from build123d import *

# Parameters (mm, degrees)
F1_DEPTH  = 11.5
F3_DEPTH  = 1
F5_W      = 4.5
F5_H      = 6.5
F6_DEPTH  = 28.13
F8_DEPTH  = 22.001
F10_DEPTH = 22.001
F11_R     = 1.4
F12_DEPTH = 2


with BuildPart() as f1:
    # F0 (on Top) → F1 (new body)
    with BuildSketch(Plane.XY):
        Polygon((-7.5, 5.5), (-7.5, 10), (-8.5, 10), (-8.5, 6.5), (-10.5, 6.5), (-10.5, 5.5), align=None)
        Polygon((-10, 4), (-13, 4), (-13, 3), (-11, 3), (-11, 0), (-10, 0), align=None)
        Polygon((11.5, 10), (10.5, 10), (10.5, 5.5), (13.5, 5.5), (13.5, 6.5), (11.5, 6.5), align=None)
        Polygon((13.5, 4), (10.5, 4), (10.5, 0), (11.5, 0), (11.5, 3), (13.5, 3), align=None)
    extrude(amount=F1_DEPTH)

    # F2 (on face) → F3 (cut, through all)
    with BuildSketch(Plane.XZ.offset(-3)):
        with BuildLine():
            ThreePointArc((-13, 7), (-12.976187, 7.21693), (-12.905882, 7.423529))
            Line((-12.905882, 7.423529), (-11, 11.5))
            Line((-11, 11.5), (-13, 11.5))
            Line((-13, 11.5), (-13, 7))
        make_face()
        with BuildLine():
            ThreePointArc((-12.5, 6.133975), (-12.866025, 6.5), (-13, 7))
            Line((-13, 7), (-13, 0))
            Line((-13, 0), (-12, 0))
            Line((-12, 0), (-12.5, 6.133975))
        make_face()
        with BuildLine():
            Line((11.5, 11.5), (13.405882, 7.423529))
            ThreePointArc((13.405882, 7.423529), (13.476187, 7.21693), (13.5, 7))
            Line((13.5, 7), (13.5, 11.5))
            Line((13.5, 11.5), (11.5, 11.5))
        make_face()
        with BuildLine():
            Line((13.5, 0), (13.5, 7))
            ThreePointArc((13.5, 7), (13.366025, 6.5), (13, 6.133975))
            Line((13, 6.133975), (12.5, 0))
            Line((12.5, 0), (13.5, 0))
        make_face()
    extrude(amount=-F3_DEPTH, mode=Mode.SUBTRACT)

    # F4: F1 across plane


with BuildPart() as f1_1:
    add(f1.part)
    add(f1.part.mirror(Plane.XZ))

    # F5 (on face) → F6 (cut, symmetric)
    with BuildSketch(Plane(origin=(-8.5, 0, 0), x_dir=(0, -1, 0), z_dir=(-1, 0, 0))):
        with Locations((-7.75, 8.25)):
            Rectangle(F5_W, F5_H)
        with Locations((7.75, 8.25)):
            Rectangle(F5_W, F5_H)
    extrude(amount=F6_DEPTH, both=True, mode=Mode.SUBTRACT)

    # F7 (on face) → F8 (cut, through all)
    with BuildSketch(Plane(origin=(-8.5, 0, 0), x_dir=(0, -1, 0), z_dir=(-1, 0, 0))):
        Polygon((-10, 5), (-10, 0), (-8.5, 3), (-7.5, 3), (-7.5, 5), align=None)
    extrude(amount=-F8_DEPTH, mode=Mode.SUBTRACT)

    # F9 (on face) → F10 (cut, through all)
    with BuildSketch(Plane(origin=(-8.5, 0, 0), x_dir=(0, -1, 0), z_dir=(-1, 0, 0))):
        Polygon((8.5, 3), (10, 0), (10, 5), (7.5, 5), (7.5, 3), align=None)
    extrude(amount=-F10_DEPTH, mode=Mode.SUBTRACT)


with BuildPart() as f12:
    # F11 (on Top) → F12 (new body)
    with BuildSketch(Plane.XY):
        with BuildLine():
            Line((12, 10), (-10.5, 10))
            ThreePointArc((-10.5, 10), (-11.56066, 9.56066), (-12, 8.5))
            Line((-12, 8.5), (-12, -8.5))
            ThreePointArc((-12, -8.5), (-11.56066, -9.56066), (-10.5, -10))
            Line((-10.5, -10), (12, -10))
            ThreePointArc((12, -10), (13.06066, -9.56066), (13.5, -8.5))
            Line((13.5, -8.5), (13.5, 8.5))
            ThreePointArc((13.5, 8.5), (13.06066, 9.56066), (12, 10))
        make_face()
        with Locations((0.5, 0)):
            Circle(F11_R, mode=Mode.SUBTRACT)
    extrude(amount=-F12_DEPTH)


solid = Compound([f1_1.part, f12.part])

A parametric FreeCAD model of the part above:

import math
import FreeCAD as App
import Part
import Sketcher
from FreeCAD import Vector
Q = App.Units.Quantity

doc = App.newDocument("Part")
body = doc.addObject("PartDesign::Body", "Body")
body.AllowCompound = True

# Sketch on XY plane
sketch1 = doc.addObject("Sketcher::SketchObject", "Sketch")
body.addObject(sketch1)
sketch1.AttachmentSupport = (doc.XY_Plane, [""])
sketch1.MapMode = "FlatFace"
sketch1.addGeometry(Part.LineSegment(Vector(-7.5, 5.5, 0), Vector(-7.5, 10, 0)), False)
sketch1.addGeometry(Part.LineSegment(Vector(-7.5, 10, 0), Vector(-8.5, 10, 0)), False)
sketch1.addGeometry(Part.LineSegment(Vector(-8.5, 10, 0), Vector(-8.5, 6.5, 0)), False)
sketch1.addGeometry(Part.LineSegment(Vector(-8.5, 6.5, 0), Vector(-10.5, 6.5, 0)), False)
sketch1.addGeometry(Part.LineSegment(Vector(-10.5, 6.5, 0), Vector(-10.5, 5.5, 0)), False)
sketch1.addGeometry(Part.LineSegment(Vector(-10.5, 5.5, 0), Vector(-7.5, 5.5, 0)), False)
sketch1.addGeometry(Part.LineSegment(Vector(-10, 4, 0), Vector(-13, 4, 0)), False)
sketch1.addGeometry(Part.LineSegment(Vector(-13, 4, 0), Vector(-13, 3, 0)), False)
sketch1.addGeometry(Part.LineSegment(Vector(-13, 3, 0), Vector(-11, 3, 0)), False)
sketch1.addGeometry(Part.LineSegment(Vector(-11, 3, 0), Vector(-11, 0, 0)), False)
sketch1.addGeometry(Part.LineSegment(Vector(-11, 0, 0), Vector(-10, 0, 0)), False)
sketch1.addGeometry(Part.LineSegment(Vector(-10, 0, 0), Vector(-10, 4, 0)), False)
sketch1.addGeometry(Part.LineSegment(Vector(11.5, 10, 0), Vector(10.5, 10, 0)), False)
sketch1.addGeometry(Part.LineSegment(Vector(10.5, 10, 0), Vector(10.5, 5.5, 0)), False)
sketch1.addGeometry(Part.LineSegment(Vector(10.5, 5.5, 0), Vector(13.5, 5.5, 0)), False)
sketch1.addGeometry(Part.LineSegment(Vector(13.5, 5.5, 0), Vector(13.5, 6.5, 0)), False)
sketch1.addGeometry(Part.LineSegment(Vector(13.5, 6.5, 0), Vector(11.5, 6.5, 0)), False)
sketch1.addGeometry(Part.LineSegment(Vector(11.5, 6.5, 0), Vector(11.5, 10, 0)), False)
sketch1.addGeometry(Part.LineSegment(Vector(13.5, 4, 0), Vector(10.5, 4, 0)), False)
sketch1.addGeometry(Part.LineSegment(Vector(10.5, 4, 0), Vector(10.5, 0, 0)), False)
sketch1.addGeometry(Part.LineSegment(Vector(10.5, 0, 0), Vector(11.5, 0, 0)), False)
sketch1.addGeometry(Part.LineSegment(Vector(11.5, 0, 0), Vector(11.5, 3, 0)), False)
sketch1.addGeometry(Part.LineSegment(Vector(11.5, 3, 0), Vector(13.5, 3, 0)), False)
sketch1.addGeometry(Part.LineSegment(Vector(13.5, 3, 0), Vector(13.5, 4, 0)), False)
sketch1.addConstraint(Sketcher.Constraint("Coincident", 0, 2, 1, 1))
sketch1.addConstraint(Sketcher.Constraint("Coincident", 1, 2, 2, 1))
sketch1.addConstraint(Sketcher.Constraint("Coincident", 2, 2, 3, 1))
sketch1.addConstraint(Sketcher.Constraint("Coincident", 3, 2, 4, 1))
sketch1.addConstraint(Sketcher.Constraint("Coincident", 4, 2, 5, 1))
sketch1.addConstraint(Sketcher.Constraint("Coincident", 5, 2, 0, 1))
sketch1.addConstraint(Sketcher.Constraint("Coincident", 6, 2, 7, 1))
sketch1.addConstraint(Sketcher.Constraint("Coincident", 7, 2, 8, 1))
sketch1.addConstraint(Sketcher.Constraint("Coincident", 8, 2, 9, 1))
sketch1.addConstraint(Sketcher.Constraint("Coincident", 9, 2, 10, 1))
sketch1.addConstraint(Sketcher.Constraint("Coincident", 10, 2, 11, 1))
sketch1.addConstraint(Sketcher.Constraint("Coincident", 11, 2, 6, 1))
sketch1.addConstraint(Sketcher.Constraint("Coincident", 12, 2, 13, 1))
sketch1.addConstraint(Sketcher.Constraint("Coincident", 13, 2, 14, 1))
sketch1.addConstraint(Sketcher.Constraint("Coincident", 14, 2, 15, 1))
sketch1.addConstraint(Sketcher.Constraint("Coincident", 15, 2, 16, 1))
sketch1.addConstraint(Sketcher.Constraint("Coincident", 16, 2, 17, 1))
sketch1.addConstraint(Sketcher.Constraint("Coincident", 17, 2, 12, 1))
sketch1.addConstraint(Sketcher.Constraint("Coincident", 18, 2, 19, 1))
sketch1.addConstraint(Sketcher.Constraint("Coincident", 19, 2, 20, 1))
sketch1.addConstraint(Sketcher.Constraint("Coincident", 20, 2, 21, 1))
sketch1.addConstraint(Sketcher.Constraint("Coincident", 21, 2, 22, 1))
sketch1.addConstraint(Sketcher.Constraint("Coincident", 22, 2, 23, 1))
sketch1.addConstraint(Sketcher.Constraint("Coincident", 23, 2, 18, 1))
sketch1.addConstraint(Sketcher.Constraint("Vertical", 0))
sketch1.addConstraint(Sketcher.Constraint("Horizontal", 1))
sketch1.addConstraint(Sketcher.Constraint("Vertical", 2))
sketch1.addConstraint(Sketcher.Constraint("Horizontal", 3))
sketch1.addConstraint(Sketcher.Constraint("Vertical", 4))
sketch1.addConstraint(Sketcher.Constraint("Horizontal", 5))
sketch1.addConstraint(Sketcher.Constraint("Horizontal", 6))
sketch1.addConstraint(Sketcher.Constraint("Vertical", 7))
sketch1.addConstraint(Sketcher.Constraint("Horizontal", 8))
sketch1.addConstraint(Sketcher.Constraint("Vertical", 9))
sketch1.addConstraint(Sketcher.Constraint("Horizontal", 10))
sketch1.addConstraint(Sketcher.Constraint("Vertical", 11))
sketch1.addConstraint(Sketcher.Constraint("Horizontal", 12))
sketch1.addConstraint(Sketcher.Constraint("Vertical", 13))
sketch1.addConstraint(Sketcher.Constraint("Horizontal", 14))
sketch1.addConstraint(Sketcher.Constraint("Vertical", 15))
sketch1.addConstraint(Sketcher.Constraint("Horizontal", 16))
sketch1.addConstraint(Sketcher.Constraint("Vertical", 17))
sketch1.addConstraint(Sketcher.Constraint("Horizontal", 18))
sketch1.addConstraint(Sketcher.Constraint("Vertical", 19))
sketch1.addConstraint(Sketcher.Constraint("Horizontal", 20))
sketch1.addConstraint(Sketcher.Constraint("Vertical", 21))
sketch1.addConstraint(Sketcher.Constraint("Horizontal", 22))
sketch1.addConstraint(Sketcher.Constraint("Vertical", 23))
sketch1.addConstraint(Sketcher.Constraint("Symmetric", 4, 2, 13, 2, -2))
sketch1.addConstraint(Sketcher.Constraint("PointOnObject", 9, 2, -1))
sketch1.addConstraint(Sketcher.Constraint("PointOnObject", 19, 2, -1))
sketch1.addConstraint(Sketcher.Constraint("Horizontal", 1, 2, 12, 2))
sketch1.addConstraint(Sketcher.Constraint("Horizontal", 3, 2, 15, 2))
sketch1.addConstraint(Sketcher.Constraint("Horizontal", 11, 2, 18, 2))
sketch1.addConstraint(Sketcher.Constraint("Horizontal", 8, 2, 21, 2))
sketch1.addConstraint(Sketcher.Constraint("Vertical", 13, 2, 18, 2))
sketch1.addConstraint(Sketcher.Constraint("Vertical", 17, 2, 20, 2))
sketch1.addConstraint(Sketcher.Constraint("Vertical", 15, 2, 22, 2))
sketch1.addConstraint(Sketcher.Constraint("Equal", 5, 6))
sketch1.addConstraint(Sketcher.Constraint("Equal", 3, 8))
sketch1.addConstraint(Sketcher.Constraint("Equal", 10, 12))
sketch1.addConstraint(Sketcher.Constraint("Equal", 6, 14))
sketch1.addConstraint(Sketcher.Constraint("Equal", 20, 4))
sketch1.addConstraint(Sketcher.Constraint("Equal", 4, 7))
sketch1.addConstraint(Sketcher.Constraint("Equal", 18, 9))
sketch1.addConstraint(Sketcher.Constraint("DistanceX", 1, 2, 1, 1, Q("1 mm")))
sketch1.addConstraint(Sketcher.Constraint("DistanceX", 3, 2, 3, 1, Q("2 mm")))
sketch1.addConstraint(Sketcher.Constraint("DistanceY", 0, 1, 0, 2, Q("4.5 mm")))
sketch1.addConstraint(Sketcher.Constraint("DistanceY", -1, 1, 0, 2, Q("10 mm")))
sketch1.addConstraint(Sketcher.Constraint("DistanceX", 6, 2, -1, 1, Q("13 mm")))
sketch1.addConstraint(Sketcher.Constraint("DistanceX", 0, 2, 12, 2, Q("18 mm")))
pad1 = doc.addObject("PartDesign::Pad", "Pad")
body.addObject(pad1)
pad1.Profile = sketch1
pad1.Length = 11.5

# Sketch on XZ plane
sketch2 = doc.addObject("Sketcher::SketchObject", "Sketch001")
body.addObject(sketch2)
sketch2.AttachmentSupport = (doc.XZ_Plane, [""])
sketch2.MapMode = "FlatFace"
sketch2.AttachmentOffset = App.Placement(Vector(0, 0, -3), App.Rotation())
sketch2.addGeometry(Part.ArcOfCircle(Part.Circle(Vector(-12, 7, 0), Vector(0, 0, 1), 1), math.radians(155), math.radians(180)), False)
sketch2.addGeometry(Part.LineSegment(Vector(-12.91, 7.42, 0), Vector(-11, 11.5, 0)), False)
sketch2.addGeometry(Part.LineSegment(Vector(-11, 11.5, 0), Vector(-13, 11.5, 0)), False)
sketch2.addGeometry(Part.LineSegment(Vector(-13, 11.5, 0), Vector(-13, 7, 0)), False)
sketch2.addGeometry(Part.ArcOfCircle(Part.Circle(Vector(-12, 7, 0), Vector(0, 0, 1), 1), math.radians(-180), math.radians(-120)), False)
sketch2.addGeometry(Part.LineSegment(Vector(-13, 7, 0), Vector(-13, 0, 0)), False)
sketch2.addGeometry(Part.LineSegment(Vector(-13, 0, 0), Vector(-12, 0, 0)), False)
sketch2.addGeometry(Part.LineSegment(Vector(-12, 0, 0), Vector(-12.5, 6.13, 0)), False)
sketch2.addGeometry(Part.LineSegment(Vector(11.5, 11.5, 0), Vector(13.41, 7.42, 0)), False)
sketch2.addGeometry(Part.ArcOfCircle(Part.Circle(Vector(12.5, 7, 0), Vector(0, 0, 1), 1), math.radians(0), math.radians(25)), False)
sketch2.addGeometry(Part.LineSegment(Vector(13.5, 7, 0), Vector(13.5, 11.5, 0)), False)
sketch2.addGeometry(Part.LineSegment(Vector(13.5, 11.5, 0), Vector(11.5, 11.5, 0)), False)
sketch2.addGeometry(Part.LineSegment(Vector(13.5, 0, 0), Vector(13.5, 7, 0)), False)
sketch2.addGeometry(Part.ArcOfCircle(Part.Circle(Vector(12.5, 7, 0), Vector(0, 0, 1), 1), math.radians(-60), math.radians(0)), False)
sketch2.addGeometry(Part.LineSegment(Vector(13, 6.13, 0), Vector(12.5, 0, 0)), False)
sketch2.addGeometry(Part.LineSegment(Vector(12.5, 0, 0), Vector(13.5, 0, 0)), False)
sketch2.addConstraint(Sketcher.Constraint("Tangent", 0, 1, 1, 1))
sketch2.addConstraint(Sketcher.Constraint("Coincident", 1, 2, 2, 1))
sketch2.addConstraint(Sketcher.Constraint("Coincident", 2, 2, 3, 1))
sketch2.addConstraint(Sketcher.Constraint("Tangent", 3, 2, 0, 2))
sketch2.addConstraint(Sketcher.Constraint("Tangent", 4, 1, 5, 1))
sketch2.addConstraint(Sketcher.Constraint("Coincident", 5, 2, 6, 1))
sketch2.addConstraint(Sketcher.Constraint("Coincident", 6, 2, 7, 1))
sketch2.addConstraint(Sketcher.Constraint("Coincident", 7, 2, 4, 2))
sketch2.addConstraint(Sketcher.Constraint("Tangent", 8, 2, 9, 2))
sketch2.addConstraint(Sketcher.Constraint("Tangent", 9, 1, 10, 1))
sketch2.addConstraint(Sketcher.Constraint("Coincident", 10, 2, 11, 1))
sketch2.addConstraint(Sketcher.Constraint("Coincident", 11, 2, 8, 1))
sketch2.addConstraint(Sketcher.Constraint("Tangent", 12, 2, 13, 2))
sketch2.addConstraint(Sketcher.Constraint("Coincident", 13, 1, 14, 1))
sketch2.addConstraint(Sketcher.Constraint("Coincident", 14, 2, 15, 1))
sketch2.addConstraint(Sketcher.Constraint("Coincident", 15, 2, 12, 1))
sketch2.addConstraint(Sketcher.Constraint("Horizontal", 2))
sketch2.addConstraint(Sketcher.Constraint("Vertical", 3))
sketch2.addConstraint(Sketcher.Constraint("Vertical", 5))
sketch2.addConstraint(Sketcher.Constraint("Horizontal", 6))
sketch2.addConstraint(Sketcher.Constraint("Vertical", 10))
sketch2.addConstraint(Sketcher.Constraint("Horizontal", 11))
sketch2.addConstraint(Sketcher.Constraint("Vertical", 12))
sketch2.addConstraint(Sketcher.Constraint("Horizontal", 15))
sketch2.addConstraint(Sketcher.Constraint("Coincident", 4, 3, 0, 3))
sketch2.addConstraint(Sketcher.Constraint("Coincident", 13, 3, 9, 3))
sketch2.addConstraint(Sketcher.Constraint("Equal", 0, 9))
sketch2.addConstraint(Sketcher.Constraint("Equal", 4, 13))
sketch2.addConstraint(Sketcher.Constraint("PointOnObject", 5, 2, -1))
sketch2.addConstraint(Sketcher.Constraint("PointOnObject", 14, 2, -1))
sketch2.addConstraint(Sketcher.Constraint("Horizontal", 4, 3, 9, 3))
sketch2.addConstraint(Sketcher.Constraint("Horizontal", 0, 1, 8, 2))
sketch2.addConstraint(Sketcher.Constraint("Horizontal", 2, 2, 10, 2))
sketch2.addConstraint(Sketcher.Constraint("Horizontal", 7, 2, 13, 1))
sketch2.addConstraint(Sketcher.Constraint("Vertical", 2, 2, 4, 1))
sketch2.addConstraint(Sketcher.Constraint("Vertical", 4, 3, 6, 2))
sketch2.addConstraint(Sketcher.Constraint("Vertical", 13, 3, 14, 2))
sketch2.addConstraint(Sketcher.Constraint("Radius", 4, Q("1.000001 mm")))
sketch2.addConstraint(Sketcher.Constraint("DistanceX", 2, 2, 2, 1, Q("2 mm")))
sketch2.addConstraint(Sketcher.Constraint("DistanceY", 5, 2, 5, 1, Q("7 mm")))
sketch2.addConstraint(Sketcher.Constraint("DistanceY", 3, 2, 3, 1, Q("4.5 mm")))
sketch2.addConstraint(Sketcher.Constraint("DistanceX", 4, 3, -1, 1, Q("11.999999 mm")))
sketch2.addConstraint(Sketcher.Constraint("DistanceX", -1, 1, 13, 1, Q("13 mm")))
sketch2.addConstraint(Sketcher.Constraint("DistanceX", -1, 1, 13, 3, Q("12.499999 mm")))
pocket1 = doc.addObject("PartDesign::Pocket", "Pocket")
body.addObject(pocket1)
pocket1.Profile = sketch2
pocket1.Length = 1
body2 = doc.addObject("PartDesign::Body", "Body001")
body2.AllowCompound = True
doc.recompute()

body2.BaseFeature = body
doc.recompute()

mirroring = doc.addObject("Part::Mirroring", "Mirroring")
mirroring.Source = body
mirroring.Base = Vector(0, 0, 0)
mirroring.Normal = Vector(0, -1, 0)
body3 = doc.addObject("PartDesign::Body", "Body002")
body3.BaseFeature = mirroring
boolean = doc.addObject("PartDesign::Boolean", "Boolean")
body2.addObject(boolean)
boolean.Type = "Fuse"
boolean.addObjects([body3])
doc.recompute()

# Sketch on YZ plane
sketch3 = doc.addObject("Sketcher::SketchObject", "Sketch002")
body2.addObject(sketch3)
sketch3.AttachmentSupport = (doc.getObject("YZ_Plane001"), [""])
sketch3.MapMode = "FlatFace"
sketch3.AttachmentOffset = App.Placement(Vector(0, 0, -8.5), App.Rotation())
sketch3.addGeometry(Part.LineSegment(Vector(10, 11.5, 0), Vector(10, 5, 0)), False)
sketch3.addGeometry(Part.LineSegment(Vector(10, 5, 0), Vector(5.5, 5, 0)), False)
sketch3.addGeometry(Part.LineSegment(Vector(5.5, 5, 0), Vector(5.5, 11.5, 0)), False)
sketch3.addGeometry(Part.LineSegment(Vector(5.5, 11.5, 0), Vector(10, 11.5, 0)), False)
sketch3.addGeometry(Part.LineSegment(Vector(-5.5, 11.5, 0), Vector(-5.5, 5, 0)), False)
sketch3.addGeometry(Part.LineSegment(Vector(-5.5, 5, 0), Vector(-10, 5, 0)), False)
sketch3.addGeometry(Part.LineSegment(Vector(-10, 5, 0), Vector(-10, 11.5, 0)), False)
sketch3.addGeometry(Part.LineSegment(Vector(-10, 11.5, 0), Vector(-5.5, 11.5, 0)), False)
sketch3.addConstraint(Sketcher.Constraint("Coincident", 0, 2, 1, 1))
sketch3.addConstraint(Sketcher.Constraint("Coincident", 1, 2, 2, 1))
sketch3.addConstraint(Sketcher.Constraint("Coincident", 2, 2, 3, 1))
sketch3.addConstraint(Sketcher.Constraint("Coincident", 3, 2, 0, 1))
sketch3.addConstraint(Sketcher.Constraint("Coincident", 4, 2, 5, 1))
sketch3.addConstraint(Sketcher.Constraint("Coincident", 5, 2, 6, 1))
sketch3.addConstraint(Sketcher.Constraint("Coincident", 6, 2, 7, 1))
sketch3.addConstraint(Sketcher.Constraint("Coincident", 7, 2, 4, 1))
sketch3.addConstraint(Sketcher.Constraint("Vertical", 0))
sketch3.addConstraint(Sketcher.Constraint("Horizontal", 1))
sketch3.addConstraint(Sketcher.Constraint("Vertical", 2))
sketch3.addConstraint(Sketcher.Constraint("Horizontal", 3))
sketch3.addConstraint(Sketcher.Constraint("Vertical", 4))
sketch3.addConstraint(Sketcher.Constraint("Horizontal", 5))
sketch3.addConstraint(Sketcher.Constraint("Vertical", 6))
sketch3.addConstraint(Sketcher.Constraint("Horizontal", 7))
sketch3.addConstraint(Sketcher.Constraint("Symmetric", 1, 2, 4, 2, -2))
sketch3.addConstraint(Sketcher.Constraint("Symmetric", 3, 2, 6, 2, -2))
sketch3.addConstraint(Sketcher.Constraint("DistanceX", 1, 2, 1, 1, Q("4.5 mm")))
sketch3.addConstraint(Sketcher.Constraint("DistanceY", 0, 2, 0, 1, Q("6.5 mm")))
sketch3.addConstraint(Sketcher.Constraint("DistanceX", -1, 1, 0, 2, Q("10 mm")))
sketch3.addConstraint(Sketcher.Constraint("DistanceY", -1, 1, 0, 2, Q("5 mm")))
pocket2 = doc.addObject("PartDesign::Pocket", "Pocket001")
body2.addObject(pocket2)
pocket2.Profile = sketch3
pocket2.Length = 56.26
pocket2.Midplane = True

# Sketch on YZ plane
sketch4 = doc.addObject("Sketcher::SketchObject", "Sketch003")
body2.addObject(sketch4)
sketch4.AttachmentSupport = (doc.getObject("YZ_Plane001"), [""])
sketch4.MapMode = "FlatFace"
sketch4.AttachmentOffset = App.Placement(Vector(0, 0, -8.5), App.Rotation())
sketch4.addGeometry(Part.LineSegment(Vector(10, 5, 0), Vector(10, 0, 0)), False)
sketch4.addGeometry(Part.LineSegment(Vector(10, 0, 0), Vector(8.5, 3, 0)), False)
sketch4.addGeometry(Part.LineSegment(Vector(8.5, 3, 0), Vector(7.5, 3, 0)), False)
sketch4.addGeometry(Part.LineSegment(Vector(7.5, 3, 0), Vector(7.5, 5, 0)), False)
sketch4.addGeometry(Part.LineSegment(Vector(7.5, 5, 0), Vector(10, 5, 0)), False)
sketch4.addConstraint(Sketcher.Constraint("Coincident", 0, 2, 1, 1))
sketch4.addConstraint(Sketcher.Constraint("Coincident", 1, 2, 2, 1))
sketch4.addConstraint(Sketcher.Constraint("Coincident", 2, 2, 3, 1))
sketch4.addConstraint(Sketcher.Constraint("Coincident", 3, 2, 4, 1))
sketch4.addConstraint(Sketcher.Constraint("Coincident", 4, 2, 0, 1))
sketch4.addConstraint(Sketcher.Constraint("Vertical", 0))
sketch4.addConstraint(Sketcher.Constraint("Horizontal", 2))
sketch4.addConstraint(Sketcher.Constraint("Vertical", 3))
sketch4.addConstraint(Sketcher.Constraint("Horizontal", 4))
sketch4.addConstraint(Sketcher.Constraint("PointOnObject", 0, 2, -1))
sketch4.addConstraint(Sketcher.Constraint("DistanceX", 2, 2, 2, 1, Q("1 mm")))
sketch4.addConstraint(Sketcher.Constraint("DistanceY", 0, 2, 0, 1, Q("5 mm")))
sketch4.addConstraint(Sketcher.Constraint("DistanceY", 3, 1, 3, 2, Q("2 mm")))
sketch4.addConstraint(Sketcher.Constraint("DistanceX", 4, 1, 4, 2, Q("2.5 mm")))
sketch4.addConstraint(Sketcher.Constraint("DistanceX", -1, 1, 0, 2, Q("10 mm")))
pocket3 = doc.addObject("PartDesign::Pocket", "Pocket002")
body2.addObject(pocket3)
pocket3.Profile = sketch4
pocket3.Type = "ThroughAll"
pocket3.Reversed = True

# Sketch on YZ plane
sketch5 = doc.addObject("Sketcher::SketchObject", "Sketch004")
body2.addObject(sketch5)
sketch5.AttachmentSupport = (doc.getObject("YZ_Plane001"), [""])
sketch5.MapMode = "FlatFace"
sketch5.AttachmentOffset = App.Placement(Vector(0, 0, -8.5), App.Rotation())
sketch5.addGeometry(Part.LineSegment(Vector(-8.5, 3, 0), Vector(-10, 0, 0)), False)
sketch5.addGeometry(Part.LineSegment(Vector(-10, 0, 0), Vector(-10, 5, 0)), False)
sketch5.addGeometry(Part.LineSegment(Vector(-10, 5, 0), Vector(-7.5, 5, 0)), False)
sketch5.addGeometry(Part.LineSegment(Vector(-7.5, 5, 0), Vector(-7.5, 3, 0)), False)
sketch5.addGeometry(Part.LineSegment(Vector(-7.5, 3, 0), Vector(-8.5, 3, 0)), False)
sketch5.addConstraint(Sketcher.Constraint("Coincident", 0, 2, 1, 1))
sketch5.addConstraint(Sketcher.Constraint("Coincident", 1, 2, 2, 1))
sketch5.addConstraint(Sketcher.Constraint("Coincident", 2, 2, 3, 1))
sketch5.addConstraint(Sketcher.Constraint("Coincident", 3, 2, 4, 1))
sketch5.addConstraint(Sketcher.Constraint("Coincident", 4, 2, 0, 1))
sketch5.addConstraint(Sketcher.Constraint("Vertical", 1))
sketch5.addConstraint(Sketcher.Constraint("Horizontal", 2))
sketch5.addConstraint(Sketcher.Constraint("Vertical", 3))
sketch5.addConstraint(Sketcher.Constraint("Horizontal", 4))
sketch5.addConstraint(Sketcher.Constraint("PointOnObject", 0, 2, -1))
sketch5.addConstraint(Sketcher.Constraint("DistanceX", 4, 2, 4, 1, Q("1 mm")))
sketch5.addConstraint(Sketcher.Constraint("DistanceY", 1, 1, 1, 2, Q("5 mm")))
sketch5.addConstraint(Sketcher.Constraint("DistanceY", 3, 2, 3, 1, Q("2 mm")))
sketch5.addConstraint(Sketcher.Constraint("DistanceX", 2, 1, 2, 2, Q("2.5 mm")))
sketch5.addConstraint(Sketcher.Constraint("DistanceX", 0, 2, -1, 1, Q("10 mm")))
pocket4 = doc.addObject("PartDesign::Pocket", "Pocket003")
body2.addObject(pocket4)
pocket4.Profile = sketch5
pocket4.Type = "ThroughAll"
pocket4.Reversed = True
body4 = doc.addObject("PartDesign::Body", "Body003")

# Sketch on XY plane
sketch6 = doc.addObject("Sketcher::SketchObject", "Sketch005")
body4.addObject(sketch6)
sketch6.AttachmentSupport = (doc.getObject("XY_Plane003"), [""])
sketch6.MapMode = "FlatFace"
sketch6.addGeometry(Part.LineSegment(Vector(12, 10, 0), Vector(-10.5, 10, 0)), False)
sketch6.addGeometry(Part.ArcOfCircle(Part.Circle(Vector(-10.5, 8.5, 0), Vector(0, 0, 1), 1.5), math.radians(90), math.radians(180)), False)
sketch6.addGeometry(Part.LineSegment(Vector(-12, 8.5, 0), Vector(-12, -8.5, 0)), False)
sketch6.addGeometry(Part.ArcOfCircle(Part.Circle(Vector(-10.5, -8.5, 0), Vector(0, 0, 1), 1.5), math.radians(-180), math.radians(-90)), False)
sketch6.addGeometry(Part.LineSegment(Vector(-10.5, -10, 0), Vector(12, -10, 0)), False)
sketch6.addGeometry(Part.ArcOfCircle(Part.Circle(Vector(12, -8.5, 0), Vector(0, 0, 1), 1.5), math.radians(-90), math.radians(0)), False)
sketch6.addGeometry(Part.LineSegment(Vector(13.5, -8.5, 0), Vector(13.5, 8.5, 0)), False)
sketch6.addGeometry(Part.ArcOfCircle(Part.Circle(Vector(12, 8.5, 0), Vector(0, 0, 1), 1.5), math.radians(0), math.radians(90)), False)
sketch6.addGeometry(Part.Circle(Vector(0.5, 0, 0), Vector(0, 0, 1), 1.4), False)
sketch6.addConstraint(Sketcher.Constraint("Tangent", 0, 2, 1, 1))
sketch6.addConstraint(Sketcher.Constraint("Tangent", 1, 2, 2, 1))
sketch6.addConstraint(Sketcher.Constraint("Tangent", 2, 2, 3, 1))
sketch6.addConstraint(Sketcher.Constraint("Tangent", 3, 2, 4, 1))
sketch6.addConstraint(Sketcher.Constraint("Tangent", 4, 2, 5, 1))
sketch6.addConstraint(Sketcher.Constraint("Tangent", 5, 2, 6, 1))
sketch6.addConstraint(Sketcher.Constraint("Tangent", 6, 2, 7, 1))
sketch6.addConstraint(Sketcher.Constraint("Tangent", 7, 2, 0, 1))
sketch6.addConstraint(Sketcher.Constraint("Horizontal", 0))
sketch6.addConstraint(Sketcher.Constraint("Vertical", 2))
sketch6.addConstraint(Sketcher.Constraint("Horizontal", 4))
sketch6.addConstraint(Sketcher.Constraint("Vertical", 6))
sketch6.addConstraint(Sketcher.Constraint("Equal", 1, 3))
sketch6.addConstraint(Sketcher.Constraint("Equal", 3, 5))
sketch6.addConstraint(Sketcher.Constraint("Equal", 5, 7))
sketch6.addConstraint(Sketcher.Constraint("PointOnObject", 8, 3, -1))
sketch6.addConstraint(Sketcher.Constraint("Diameter", 8, Q("2.8 mm")))
sketch6.addConstraint(Sketcher.Constraint("Radius", 1, Q("1.500001 mm")))
sketch6.addConstraint(Sketcher.Constraint("DistanceY", 2, 2, 2, 1, Q("17 mm")))
sketch6.addConstraint(Sketcher.Constraint("DistanceX", 0, 2, 0, 1, Q("22.5 mm")))
sketch6.addConstraint(Sketcher.Constraint("DistanceX", -1, 1, 5, 3, Q("11.999999 mm")))
sketch6.addConstraint(Sketcher.Constraint("DistanceY", -1, 1, 0, 2, Q("10 mm")))
sketch6.addConstraint(Sketcher.Constraint("DistanceX", 1, 3, 8, 3, Q("10.999999 mm")))
pad2 = doc.addObject("PartDesign::Pad", "Pad001")
body4.addObject(pad2)
pad2.Profile = sketch6
pad2.Length = 2
pad2.Reversed = True
mirroring.Visibility = False

doc.recompute()
